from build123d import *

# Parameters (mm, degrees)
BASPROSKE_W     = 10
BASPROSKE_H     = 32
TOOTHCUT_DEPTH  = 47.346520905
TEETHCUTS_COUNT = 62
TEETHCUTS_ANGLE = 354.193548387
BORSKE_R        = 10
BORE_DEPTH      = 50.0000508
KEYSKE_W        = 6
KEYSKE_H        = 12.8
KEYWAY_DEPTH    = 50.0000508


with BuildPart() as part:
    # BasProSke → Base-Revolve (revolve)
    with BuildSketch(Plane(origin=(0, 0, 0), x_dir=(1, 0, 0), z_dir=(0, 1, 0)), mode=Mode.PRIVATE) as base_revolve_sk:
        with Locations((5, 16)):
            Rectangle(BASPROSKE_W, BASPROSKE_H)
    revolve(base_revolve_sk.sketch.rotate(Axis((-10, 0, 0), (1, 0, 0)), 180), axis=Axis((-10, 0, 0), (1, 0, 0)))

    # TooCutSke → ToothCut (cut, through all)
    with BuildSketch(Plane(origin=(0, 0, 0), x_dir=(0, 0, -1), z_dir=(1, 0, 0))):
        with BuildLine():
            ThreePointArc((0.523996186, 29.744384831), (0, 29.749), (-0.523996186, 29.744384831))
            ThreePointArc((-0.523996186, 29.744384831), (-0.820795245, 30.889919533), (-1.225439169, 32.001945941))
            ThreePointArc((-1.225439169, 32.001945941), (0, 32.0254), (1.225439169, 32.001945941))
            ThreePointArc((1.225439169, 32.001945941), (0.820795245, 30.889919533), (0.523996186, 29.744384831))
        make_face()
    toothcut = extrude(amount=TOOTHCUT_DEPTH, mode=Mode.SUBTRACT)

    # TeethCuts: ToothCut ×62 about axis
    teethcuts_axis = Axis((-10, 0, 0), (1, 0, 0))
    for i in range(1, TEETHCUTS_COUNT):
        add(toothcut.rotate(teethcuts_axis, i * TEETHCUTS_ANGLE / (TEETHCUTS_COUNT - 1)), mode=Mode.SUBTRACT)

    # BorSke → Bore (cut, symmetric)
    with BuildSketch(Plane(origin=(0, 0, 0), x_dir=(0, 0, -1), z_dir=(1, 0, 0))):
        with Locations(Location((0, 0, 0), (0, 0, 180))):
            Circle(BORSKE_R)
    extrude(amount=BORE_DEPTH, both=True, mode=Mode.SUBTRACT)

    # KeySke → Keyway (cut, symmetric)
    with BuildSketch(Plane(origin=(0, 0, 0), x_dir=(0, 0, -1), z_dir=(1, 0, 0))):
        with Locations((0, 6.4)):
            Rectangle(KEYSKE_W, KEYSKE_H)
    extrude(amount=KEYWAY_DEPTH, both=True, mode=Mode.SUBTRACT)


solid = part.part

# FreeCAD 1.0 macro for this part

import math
import FreeCAD as App
import Part
import Sketcher
from FreeCAD import Vector

doc = App.newDocument("Part")
body = doc.addObject("PartDesign::Body", "Body")

sketch1 = body.newObject("Sketcher::SketchObject", "Sketch")
sketch1.AttachmentSupport = (doc.getObject("XZ_Plane"), [""])
sketch1.MapMode = "FlatFace"
sketch1.addGeometry(Part.LineSegment(Vector(0, -32, 0), Vector(0, 0, 0)), False)
sketch1.addGeometry(Part.LineSegment(Vector(0, 0, 0), Vector(10, 0, 0)), False)
sketch1.addGeometry(Part.LineSegment(Vector(10, 0, 0), Vector(10, -32, 0)), False)
sketch1.addGeometry(Part.LineSegment(Vector(10, -32, 0), Vector(0, -32, 0)), False)
sketch1.addConstraint(Sketcher.Constraint("Coincident", 0, 2, 1, 1))
sketch1.addConstraint(Sketcher.Constraint("Coincident", 1, 2, 2, 1))
sketch1.addConstraint(Sketcher.Constraint("Coincident", 2, 2, 3, 1))
sketch1.addConstraint(Sketcher.Constraint("Coincident", 3, 2, 0, 1))
sketch1.addConstraint(Sketcher.Constraint("Vertical", 0))
sketch1.addConstraint(Sketcher.Constraint("Horizontal", 1))
sketch1.addConstraint(Sketcher.Constraint("Vertical", 2))
sketch1.addConstraint(Sketcher.Constraint("Horizontal", 3))
sketch1.addConstraint(Sketcher.Constraint("Coincident", 0, 2, -1, 1))
sketch1.addConstraint(Sketcher.Constraint("DistanceX", 1, 1, 1, 2, 10.0))
sketch1.addConstraint(Sketcher.Constraint("DistanceY", 0, 1, 0, 2, 32.0))
revolution = body.newObject("PartDesign::Revolution", "Revolution")
revolution.Profile = sketch1
revolution.ReferenceAxis = (sketch1, ["H_Axis"])
revolution.Angle = 360

sketch2 = body.newObject("Sketcher::SketchObject", "Sketch001")
sketch2.AttachmentSupport = (doc.getObject("YZ_Plane"), [""])
sketch2.MapMode = "FlatFace"
sketch2.addGeometry(Part.ArcOfCircle(Part.Circle(Vector(0, 0, 0), Vector(0, 0, 1), 29.7), math.radians(-1.01), math.radians(1.01)), False)
sketch2.addGeometry(Part.ArcOfCircle(Part.Circle(Vector(27.2, -12.7, 0), Vector(0, 0, 1), 12.4), math.radians(67.27), math.radians(78.21)), False)
sketch2.addGeometry(Part.ArcOfCircle(Part.Circle(Vector(0, 0, 0), Vector(0, 0, 1), 32), math.radians(-2.19), math.radians(2.19)), False)
sketch2.addGeometry(Part.ArcOfCircle(Part.Circle(Vector(27.2, 12.7, 0), Vector(0, 0, 1), 12.4), math.radians(-78.21), math.radians(-67.27)), False)
sketch2.addConstraint(Sketcher.Constraint("Coincident", 0, 1, 1, 2))
sketch2.addConstraint(Sketcher.Constraint("Coincident", 1, 1, 2, 1))
sketch2.addConstraint(Sketcher.Constraint("Coincident", 2, 2, 3, 2))
sketch2.addConstraint(Sketcher.Constraint("Coincident", 3, 1, 0, 2))
sketch2.addConstraint(Sketcher.Constraint("Coincident", 0, 3, -1, 1))
sketch2.addConstraint(Sketcher.Constraint("Coincident", 2, 3, -1, 1))
sketch2.addConstraint(Sketcher.Constraint("Equal", 1, 3))
sketch2.addConstraint(Sketcher.Constraint("Symmetric", 1, 3, 3, 3, -1))
sketch2.addConstraint(Sketcher.Constraint("Radius", 1, 12.4))
sketch2.addConstraint(Sketcher.Constraint("Radius", 2, 32.0254))
sketch2.addConstraint(Sketcher.Constraint("Radius", 0, 29.748998))
sketch2.addConstraint(Sketcher.Constraint("DistanceY", 1, 3, -1, 1, 12.662371))
sketch2.addConstraint(Sketcher.Constraint("DistanceY", 1, 1, -1, 1, 1.225439))
pocket1 = body.newObject("PartDesign::Pocket", "Pocket")
pocket1.Profile = sketch2
pocket1.Type = "ThroughAll"
pocket1.Reversed = True
doc.recompute()

polarpattern = body.newObject("PartDesign::PolarPattern", "PolarPattern")
polarpattern.Originals = [pocket1]
polarpattern.Axis = (doc.getObject("X_Axis"), [""])
polarpattern.Angle = 360
polarpattern.Occurrences = 62
body.Tip = polarpattern

sketch3 = body.newObject("Sketcher::SketchObject", "Sketch002")
sketch3.AttachmentSupport = (doc.getObject("YZ_Plane"), [""])
sketch3.MapMode = "FlatFace"
sketch3.addGeometry(Part.Circle(Vector(0, 0, 0), Vector(0, 0, 1), 10), False)
sketch3.addConstraint(Sketcher.Constraint("Coincident", 0, 3, -1, 1))
sketch3.addConstraint(Sketcher.Constraint("Diameter", 0, 20.0))
pocket2 = body.newObject("PartDesign::Pocket", "Pocket001")
pocket2.Profile = sketch3
pocket2.Length = 100.000102
pocket2.Midplane = True

sketch4 = body.newObject("Sketcher::SketchObject", "Sketch003")
sketch4.AttachmentSupport = (doc.getObject("YZ_Plane"), [""])
sketch4.MapMode = "FlatFace"
sketch4.addGeometry(Part.LineSegment(Vector(13, 3, 0), Vector(0, 3, 0)), False)
sketch4.addGeometry(Part.LineSegment(Vector(0, 3, 0), Vector(0, -3, 0)), False)
sketch4.addGeometry(Part.LineSegment(Vector(0, -3, 0), Vector(13, -3, 0)), False)
sketch4.addGeometry(Part.LineSegment(Vector(13, -3, 0), Vector(13, 3, 0)), False)
sketch4.addConstraint(Sketcher.Constraint("Coincident", 0, 2, 1, 1))
sketch4.addConstraint(Sketcher.Constraint("Coincident", 1, 2, 2, 1))
sketch4.addConstraint(Sketcher.Constraint("Coincident", 2, 2, 3, 1))
sketch4.addConstraint(Sketcher.Constraint("Coincident", 3, 2, 0, 1))
sketch4.addConstraint(Sketcher.Constraint("Horizontal", 0))
sketch4.addConstraint(Sketcher.Constraint("Vertical", 1))
sketch4.addConstraint(Sketcher.Constraint("Horizontal", 2))
sketch4.addConstraint(Sketcher.Constraint("Vertical", 3))
sketch4.addConstraint(Sketcher.Constraint("Symmetric", 0, 2, 1, 2, -1, 1))
sketch4.addConstraint(Sketcher.Constraint("DistanceY", 1, 2, 1, 1, 6.0))
sketch4.addConstraint(Sketcher.Constraint("DistanceX", 0, 2, 0, 1, 12.8))
pocket3 = body.newObject("PartDesign::Pocket", "Pocket002")
pocket3.Profile = sketch4
pocket3.Length = 100.000102
pocket3.Midplane = True

doc.recompute()
